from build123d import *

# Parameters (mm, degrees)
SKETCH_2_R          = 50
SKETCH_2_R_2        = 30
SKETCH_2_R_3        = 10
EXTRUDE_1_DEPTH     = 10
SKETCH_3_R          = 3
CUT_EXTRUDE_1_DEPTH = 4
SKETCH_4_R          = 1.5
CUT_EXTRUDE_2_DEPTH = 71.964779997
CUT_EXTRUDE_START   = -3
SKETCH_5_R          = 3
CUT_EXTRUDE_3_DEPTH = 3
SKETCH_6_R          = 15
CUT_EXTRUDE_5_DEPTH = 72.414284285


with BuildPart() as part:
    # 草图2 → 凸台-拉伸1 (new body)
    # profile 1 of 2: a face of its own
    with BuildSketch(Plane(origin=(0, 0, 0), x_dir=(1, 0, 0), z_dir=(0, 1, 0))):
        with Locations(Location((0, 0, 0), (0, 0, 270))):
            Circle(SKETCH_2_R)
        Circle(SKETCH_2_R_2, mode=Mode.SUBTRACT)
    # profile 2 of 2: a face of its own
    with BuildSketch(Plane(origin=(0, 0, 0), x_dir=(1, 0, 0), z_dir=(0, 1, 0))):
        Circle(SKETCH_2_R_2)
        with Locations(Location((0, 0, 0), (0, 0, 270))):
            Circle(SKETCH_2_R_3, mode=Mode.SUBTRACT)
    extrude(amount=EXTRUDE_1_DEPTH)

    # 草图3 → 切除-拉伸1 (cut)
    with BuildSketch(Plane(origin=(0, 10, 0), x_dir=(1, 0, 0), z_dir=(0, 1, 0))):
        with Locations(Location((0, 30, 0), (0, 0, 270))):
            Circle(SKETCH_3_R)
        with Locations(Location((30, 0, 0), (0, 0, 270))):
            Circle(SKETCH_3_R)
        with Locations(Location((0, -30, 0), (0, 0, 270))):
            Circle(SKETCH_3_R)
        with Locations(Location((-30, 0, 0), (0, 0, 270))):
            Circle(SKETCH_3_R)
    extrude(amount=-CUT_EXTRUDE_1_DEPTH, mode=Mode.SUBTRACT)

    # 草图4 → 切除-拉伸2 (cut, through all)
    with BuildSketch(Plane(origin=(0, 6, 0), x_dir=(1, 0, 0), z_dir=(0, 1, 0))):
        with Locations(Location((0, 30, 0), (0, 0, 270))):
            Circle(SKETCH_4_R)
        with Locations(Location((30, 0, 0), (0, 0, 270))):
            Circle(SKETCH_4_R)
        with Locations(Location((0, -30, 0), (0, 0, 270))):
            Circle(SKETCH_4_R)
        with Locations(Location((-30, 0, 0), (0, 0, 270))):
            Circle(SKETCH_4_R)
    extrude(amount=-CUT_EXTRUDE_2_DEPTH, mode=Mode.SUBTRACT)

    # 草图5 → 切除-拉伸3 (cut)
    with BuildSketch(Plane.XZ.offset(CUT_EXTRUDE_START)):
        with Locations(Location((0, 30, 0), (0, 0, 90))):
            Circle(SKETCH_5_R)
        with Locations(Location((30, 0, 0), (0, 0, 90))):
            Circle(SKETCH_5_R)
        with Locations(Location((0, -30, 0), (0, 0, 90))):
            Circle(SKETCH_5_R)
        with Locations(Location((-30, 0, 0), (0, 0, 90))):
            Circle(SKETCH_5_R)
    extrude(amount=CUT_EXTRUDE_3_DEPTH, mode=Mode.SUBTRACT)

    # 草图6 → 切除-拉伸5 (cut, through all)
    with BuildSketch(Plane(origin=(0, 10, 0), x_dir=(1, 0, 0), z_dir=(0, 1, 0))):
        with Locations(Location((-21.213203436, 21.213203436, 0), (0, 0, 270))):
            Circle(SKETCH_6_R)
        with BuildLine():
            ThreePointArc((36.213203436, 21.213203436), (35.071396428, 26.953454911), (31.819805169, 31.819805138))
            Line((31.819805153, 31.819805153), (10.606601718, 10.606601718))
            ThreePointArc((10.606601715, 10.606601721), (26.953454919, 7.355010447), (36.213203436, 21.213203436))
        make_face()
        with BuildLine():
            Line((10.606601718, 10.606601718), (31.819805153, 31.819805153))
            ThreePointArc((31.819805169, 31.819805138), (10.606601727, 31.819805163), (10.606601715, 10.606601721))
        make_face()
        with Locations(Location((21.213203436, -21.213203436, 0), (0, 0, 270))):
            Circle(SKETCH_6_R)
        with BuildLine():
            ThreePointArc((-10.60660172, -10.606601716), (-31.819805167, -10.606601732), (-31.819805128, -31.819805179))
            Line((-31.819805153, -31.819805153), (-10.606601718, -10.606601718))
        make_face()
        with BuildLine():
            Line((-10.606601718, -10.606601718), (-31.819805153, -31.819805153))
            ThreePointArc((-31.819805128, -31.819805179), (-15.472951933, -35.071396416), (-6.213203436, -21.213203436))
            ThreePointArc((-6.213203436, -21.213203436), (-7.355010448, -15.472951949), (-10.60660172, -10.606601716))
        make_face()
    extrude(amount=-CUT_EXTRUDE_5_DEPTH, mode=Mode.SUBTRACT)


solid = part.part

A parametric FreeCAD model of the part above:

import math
import FreeCAD as App
import Part
import Sketcher
from FreeCAD import Vector

doc = App.newDocument("Part")
body = doc.addObject("PartDesign::Body", "Body")

# Sketch on XZ plane
sketch1 = body.newObject("Sketcher::SketchObject", "Sketch")
sketch1.AttachmentSupport = (doc.getObject("XZ_Plane"), [""])
sketch1.MapMode = "FlatFace"
sketch1.addGeometry(Part.Circle(Vector(0, 0, 0), Vector(0, 0, 1), 50), False)
sketch1.addGeometry(Part.Circle(Vector(0, 0, 0), Vector(0, 0, 1), 10), False)
sketch1.addConstraint(Sketcher.Constraint("Coincident", 0, 3, -1, 1))
sketch1.addConstraint(Sketcher.Constraint("Coincident", 1, 3, -1, 1))
sketch1.addConstraint(Sketcher.Constraint("Diameter", 0, 100.0))
sketch1.addConstraint(Sketcher.Constraint("Diameter", 1, 20.0))
pad1 = body.newObject("PartDesign::Pad", "Pad")
pad1.Profile = sketch1
pad1.Length = 10
pad1.Reversed = True

# Sketch on XZ plane
sketch2 = body.newObject("Sketcher::SketchObject", "Sketch001")
sketch2.AttachmentSupport = (doc.getObject("XZ_Plane"), [""])
sketch2.MapMode = "FlatFace"
sketch2.AttachmentOffset = App.Placement(Vector(0, 0, -10), App.Rotation())
sketch2.addGeometry(Part.Circle(Vector(0, -30, 0), Vector(0, 0, 1), 3), False)
sketch2.addGeometry(Part.Circle(Vector(30, 0, 0), Vector(0, 0, 1), 3), False)
sketch2.addGeometry(Part.Circle(Vector(0, 30, 0), Vector(0, 0, 1), 3), False)
sketch2.addGeometry(Part.Circle(Vector(-30, 0, 0), Vector(0, 0, 1), 3), False)
sketch2.addConstraint(Sketcher.Constraint("Equal", 0, 1))
sketch2.addConstraint(Sketcher.Constraint("Equal", 1, 2))
sketch2.addConstraint(Sketcher.Constraint("Equal", 2, 3))
sketch2.addConstraint(Sketcher.Constraint("Symmetric", 0, 3, 2, 3, -1, 1))
sketch2.addConstraint(Sketcher.Constraint("Symmetric", 1, 3, 3, 3, -1, 1))
sketch2.addConstraint(Sketcher.Constraint("PointOnObject", 0, 3, -2))
sketch2.addConstraint(Sketcher.Constraint("PointOnObject", 1, 3, -1))
sketch2.addConstraint(Sketcher.Constraint("Diameter", 0, 6.0))
sketch2.addConstraint(Sketcher.Constraint("DistanceY", 0, 3, -1, 1, 30.0))
sketch2.addConstraint(Sketcher.Constraint("DistanceX", -1, 1, 1, 3, 30.0))
pocket1 = body.newObject("PartDesign::Pocket", "Pocket")
pocket1.Profile = sketch2
pocket1.Length = 4
pocket1.Reversed = True

# Sketch on XZ plane
sketch3 = body.newObject("Sketcher::SketchObject", "Sketch002")
sketch3.AttachmentSupport = (doc.getObject("XZ_Plane"), [""])
sketch3.MapMode = "FlatFace"
sketch3.AttachmentOffset = App.Placement(Vector(0, 0, -6), App.Rotation())
sketch3.addGeometry(Part.Circle(Vector(0, -30, 0), Vector(0, 0, 1), 1.5), False)
sketch3.addGeometry(Part.Circle(Vector(30, 0, 0), Vector(0, 0, 1), 1.5), False)
sketch3.addGeometry(Part.Circle(Vector(0, 30, 0), Vector(0, 0, 1), 1.5), False)
sketch3.addGeometry(Part.Circle(Vector(-30, 0, 0), Vector(0, 0, 1), 1.5), False)
sketch3.addConstraint(Sketcher.Constraint("Equal", 0, 1))
sketch3.addConstraint(Sketcher.Constraint("Equal", 1, 2))
sketch3.addConstraint(Sketcher.Constraint("Equal", 2, 3))
sketch3.addConstraint(Sketcher.Constraint("Symmetric", 0, 3, 2, 3, -1, 1))
sketch3.addConstraint(Sketcher.Constraint("Symmetric", 1, 3, 3, 3, -1, 1))
sketch3.addConstraint(Sketcher.Constraint("PointOnObject", 0, 3, -2))
sketch3.addConstraint(Sketcher.Constraint("PointOnObject", 1, 3, -1))
sketch3.addConstraint(Sketcher.Constraint("Diameter", 0, 3.0))
sketch3.addConstraint(Sketcher.Constraint("DistanceY", 0, 3, -1, 1, 30.0))
sketch3.addConstraint(Sketcher.Constraint("DistanceX", -1, 1, 1, 3, 30.0))
pocket2 = body.newObject("PartDesign::Pocket", "Pocket001")
pocket2.Profile = sketch3
pocket2.Type = "ThroughAll"
pocket2.Reversed = True

# Sketch on XZ plane
sketch4 = body.newObject("Sketcher::SketchObject", "Sketch003")
sketch4.AttachmentSupport = (doc.getObject("XZ_Plane"), [""])
sketch4.MapMode = "FlatFace"
sketch4.AttachmentOffset = App.Placement(Vector(0, 0, -3), App.Rotation())
sketch4.addGeometry(Part.Circle(Vector(0, 30, 0), Vector(0, 0, 1), 3), False)
sketch4.addGeometry(Part.Circle(Vector(30, 0, 0), Vector(0, 0, 1), 3), False)
sketch4.addGeometry(Part.Circle(Vector(0, -30, 0), Vector(0, 0, 1), 3), False)
sketch4.addGeometry(Part.Circle(Vector(-30, 0, 0), Vector(0, 0, 1), 3), False)
sketch4.addConstraint(Sketcher.Constraint("Equal", 0, 1))
sketch4.addConstraint(Sketcher.Constraint("Equal", 1, 2))
sketch4.addConstraint(Sketcher.Constraint("Equal", 2, 3))
sketch4.addConstraint(Sketcher.Constraint("Symmetric", 0, 3, 2, 3, -1, 1))
sketch4.addConstraint(Sketcher.Constraint("Symmetric", 1, 3, 3, 3, -1, 1))
sketch4.addConstraint(Sketcher.Constraint("PointOnObject", 0, 3, -2))
sketch4.addConstraint(Sketcher.Constraint("PointOnObject", 1, 3, -1))
sketch4.addConstraint(Sketcher.Constraint("Diameter", 0, 6.0))
sketch4.addConstraint(Sketcher.Constraint("DistanceY", -1, 1, 0, 3, 30.0))
sketch4.addConstraint(Sketcher.Constraint("DistanceX", -1, 1, 1, 3, 30.0))
pocket3 = body.newObject("PartDesign::Pocket", "Pocket002")
pocket3.Profile = sketch4
pocket3.Length = 3
pocket3.Reversed = True

# Sketch on XZ plane
sketch5 = body.newObject("Sketcher::SketchObject", "Sketch004")
sketch5.AttachmentSupport = (doc.getObject("XZ_Plane"), [""])
sketch5.MapMode = "FlatFace"
sketch5.AttachmentOffset = App.Placement(Vector(0, 0, -10), App.Rotation())
sketch5.addGeometry(Part.Circle(Vector(-21.213203, -21.213203, 0), Vector(0, 0, 1), 15), False)
sketch5.addGeometry(Part.ArcOfCircle(Part.Circle(Vector(21.213203, -21.213203, 0), Vector(0, 0, 1), 15), math.radians(-45), math.radians(0)), False)
sketch5.addGeometry(Part.ArcOfCircle(Part.Circle(Vector(21.213203, -21.213203, 0), Vector(0, 0, 1), 15), math.radians(135), math.radians(315)), False)
sketch5.addGeometry(Part.ArcOfCircle(Part.Circle(Vector(21.213203, -21.213203, 0), Vector(0, 0, 1), 15), math.radians(0), math.radians(135)), False)
sketch5.addGeometry(Part.Circle(Vector(21.213203, 21.213203, 0), Vector(0, 0, 1), 15), False)
sketch5.addGeometry(Part.ArcOfCircle(Part.Circle(Vector(-21.213203, 21.213203, 0), Vector(0, 0, 1), 15), math.radians(135), math.radians(315)), False)
sketch5.addGeometry(Part.ArcOfCircle(Part.Circle(Vector(-21.213203, 21.213203, 0), Vector(0, 0, 1), 15), math.radians(0), math.radians(135)), False)
sketch5.addGeometry(Part.ArcOfCircle(Part.Circle(Vector(-21.213203, 21.213203, 0), Vector(0, 0, 1), 15), math.radians(-45), math.radians(0)), False)
sketch5.addConstraint(Sketcher.Constraint("Tangent", 1, 1, 2, 2))
sketch5.addConstraint(Sketcher.Constraint("Tangent", 2, 1, 3, 2))
sketch5.addConstraint(Sketcher.Constraint("Tangent", 3, 1, 1, 2))
sketch5.addConstraint(Sketcher.Constraint("Tangent", 5, 1, 6, 2))
sketch5.addConstraint(Sketcher.Constraint("Tangent", 6, 1, 7, 2))
sketch5.addConstraint(Sketcher.Constraint("Tangent", 7, 1, 5, 2))
sketch5.addConstraint(Sketcher.Constraint("Equal", 0, 1))
sketch5.addConstraint(Sketcher.Constraint("Equal", 3, 4))
sketch5.addConstraint(Sketcher.Constraint("Equal", 4, 5))
sketch5.addConstraint(Sketcher.Constraint("Symmetric", 0, 3, 4, 3, -1, 1))
sketch5.addConstraint(Sketcher.Constraint("Symmetric", 1, 3, 5, 3, -1, 1))
sketch5.addConstraint(Sketcher.Constraint("Symmetric", 0, 3, 1, 3, -2))
sketch5.addConstraint(Sketcher.Constraint("Horizontal", 2, 3, 3, 1))
sketch5.addConstraint(Sketcher.Constraint("Horizontal", 7, 3, 6, 1))
sketch5.addConstraint(Sketcher.Constraint("Diameter", 0, 30.0))
sketch5.addConstraint(Sketcher.Constraint("DistanceX", -1, 1, 2, 1, 10.606602))
sketch5.addConstraint(Sketcher.Constraint("DistanceY", 2, 1, -1, 1, 10.606602))
sketch5.addConstraint(Sketcher.Constraint("DistanceX", 7, 1, -1, 1, 10.606602))
sketch5.addConstraint(Sketcher.Constraint("DistanceX", 1, 3, 1, 1, 10.606602))
sketch5.addConstraint(Sketcher.Constraint("DistanceX", 2, 1, 2, 3, 10.606602))
sketch5.addConstraint(Sketcher.Constraint("DistanceX", 5, 1, 6, 3, 10.606602))
pocket4 = body.newObject("PartDesign::Pocket", "Pocket003")
pocket4.Profile = sketch5
pocket4.Type = "ThroughAll"
pocket4.Reversed = True

doc.recompute()
